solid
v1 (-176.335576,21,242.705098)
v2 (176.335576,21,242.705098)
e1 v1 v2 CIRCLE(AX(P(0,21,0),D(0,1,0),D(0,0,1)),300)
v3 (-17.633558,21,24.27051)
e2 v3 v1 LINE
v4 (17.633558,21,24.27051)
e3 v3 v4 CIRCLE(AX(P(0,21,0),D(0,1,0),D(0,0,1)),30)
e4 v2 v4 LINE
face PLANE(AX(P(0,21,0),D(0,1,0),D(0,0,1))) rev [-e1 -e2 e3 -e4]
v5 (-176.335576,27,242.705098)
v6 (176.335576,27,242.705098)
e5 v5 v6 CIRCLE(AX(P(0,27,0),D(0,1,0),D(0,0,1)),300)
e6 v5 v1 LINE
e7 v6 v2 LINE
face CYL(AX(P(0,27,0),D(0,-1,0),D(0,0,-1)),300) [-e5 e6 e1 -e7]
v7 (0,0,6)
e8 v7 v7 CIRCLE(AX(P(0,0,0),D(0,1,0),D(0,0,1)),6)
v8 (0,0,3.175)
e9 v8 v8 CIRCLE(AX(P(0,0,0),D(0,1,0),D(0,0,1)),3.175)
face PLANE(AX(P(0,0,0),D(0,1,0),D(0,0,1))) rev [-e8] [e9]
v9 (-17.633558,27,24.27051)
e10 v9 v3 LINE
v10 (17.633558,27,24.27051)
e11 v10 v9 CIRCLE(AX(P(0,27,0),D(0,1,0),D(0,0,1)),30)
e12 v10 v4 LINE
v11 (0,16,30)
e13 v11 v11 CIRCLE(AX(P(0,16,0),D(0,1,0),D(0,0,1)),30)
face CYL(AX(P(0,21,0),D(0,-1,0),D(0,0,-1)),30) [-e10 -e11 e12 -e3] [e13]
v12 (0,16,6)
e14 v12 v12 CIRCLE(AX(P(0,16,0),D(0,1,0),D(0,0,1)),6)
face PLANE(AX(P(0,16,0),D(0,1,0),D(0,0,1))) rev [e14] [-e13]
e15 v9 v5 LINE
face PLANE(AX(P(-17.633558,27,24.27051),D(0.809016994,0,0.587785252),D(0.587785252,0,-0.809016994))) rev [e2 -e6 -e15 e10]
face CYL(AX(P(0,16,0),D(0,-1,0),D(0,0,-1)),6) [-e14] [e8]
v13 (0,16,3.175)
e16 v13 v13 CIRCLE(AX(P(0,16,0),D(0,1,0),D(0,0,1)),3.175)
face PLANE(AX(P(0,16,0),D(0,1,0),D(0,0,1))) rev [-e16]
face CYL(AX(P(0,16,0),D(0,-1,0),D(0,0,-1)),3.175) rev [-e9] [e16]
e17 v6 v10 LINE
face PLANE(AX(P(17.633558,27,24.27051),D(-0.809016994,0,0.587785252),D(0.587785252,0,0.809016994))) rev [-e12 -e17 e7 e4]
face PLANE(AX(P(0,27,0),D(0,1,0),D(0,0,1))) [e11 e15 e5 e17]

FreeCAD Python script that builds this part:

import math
import FreeCAD as App
import Part
import Sketcher
Q = App.Units.Quantity

doc = App.newDocument("Part")
body = doc.addObject("PartDesign::Body", "Body")

# Sketch on XZ plane
sketch1 = body.newObject("Sketcher::SketchObject", "Sketch")
sketch1.AttachmentSupport = (doc.getObject("XZ_Plane"), [""])
sketch1.MapMode = "FlatFace"
sketch1.addGeometry(Part.Circle(App.Vector(0, 0, 0), App.Vector(0, 0, 1), 6), False)
sketch1.addGeometry(Part.Circle(App.Vector(0, 0, 0), App.Vector(0, 0, 1), 3.2), False)
sketch1.addConstraint(Sketcher.Constraint("Coincident", 0, 3, -1, 1))
sketch1.addConstraint(Sketcher.Constraint("Coincident", 1, 3, -1, 1))
sketch1.addConstraint(Sketcher.Constraint("Diameter", 0, Q("12 mm")))
sketch1.addConstraint(Sketcher.Constraint("Diameter", 1, Q("6.35 mm")))
pad1 = body.newObject("PartDesign::Pad", "Pad")
pad1.Profile = sketch1
pad1.Length = 16
pad1.Reversed = True

# Sketch on XZ plane
sketch2 = body.newObject("Sketcher::SketchObject", "Sketch001")
sketch2.AttachmentSupport = (doc.getObject("XZ_Plane"), [""])
sketch2.MapMode = "FlatFace"
sketch2.AttachmentOffset = App.Placement(App.Vector(0, 0, -16), App.Rotation())
sketch2.addGeometry(Part.Circle(App.Vector(0, 0, 0), App.Vector(0, 0, 1), 30), False)
sketch2.addConstraint(Sketcher.Constraint("Coincident", 0, 3, -1, 1))
sketch2.addConstraint(Sketcher.Constraint("Diameter", 0, Q("60 mm")))
pad2 = body.newObject("PartDesign::Pad", "Pad001")
pad2.Profile = sketch2
pad2.Length = 5
pad2.Reversed = True

# Sketch on XZ plane
sketch3 = body.newObject("Sketcher::SketchObject", "Sketch002")
sketch3.AttachmentSupport = (doc.getObject("XZ_Plane"), [""])
sketch3.MapMode = "FlatFace"
sketch3.AttachmentOffset = App.Placement(App.Vector(0, 0, -21), App.Rotation())
sketch3.addGeometry(Part.LineSegment(App.Vector(176, 243, 0), App.Vector(18, 24, 0)), False)
sketch3.addGeometry(Part.ArcOfCircle(Part.Circle(App.Vector(0, 0, 0), App.Vector(0, 0, 1), 30), math.radians(126), math.radians(414)), False)
sketch3.addGeometry(Part.LineSegment(App.Vector(-18, 24, 0), App.Vector(-176, 243, 0)), False)
sketch3.addGeometry(Part.ArcOfCircle(Part.Circle(App.Vector(0, 0, 0), App.Vector(0, 0, 1), 300), math.radians(54), math.radians(126)), False)
sketch3.addConstraint(Sketcher.Constraint("Coincident", 0, 2, 1, 2))
sketch3.addConstraint(Sketcher.Constraint("Coincident", 1, 1, 2, 1))
sketch3.addConstraint(Sketcher.Constraint("Coincident", 2, 2, 3, 2))
sketch3.addConstraint(Sketcher.Constraint("Coincident", 3, 1, 0, 1))
sketch3.addConstraint(Sketcher.Constraint("Coincident", 1, 3, -1, 1))
sketch3.addConstraint(Sketcher.Constraint("Coincident", 3, 3, -1, 1))
sketch3.addConstraint(Sketcher.Constraint("Horizontal", 0, 2, 1, 1))
sketch3.addConstraint(Sketcher.Constraint("Horizontal", 2, 2, 3, 1))
sketch3.addConstraint(Sketcher.Constraint("Radius", 1, Q("30 mm")))
sketch3.addConstraint(Sketcher.Constraint("Radius", 3, Q("300 mm")))
sketch3.addConstraint(Sketcher.Constraint("Angle", 0, Q("-126 deg")))
sketch3.addConstraint(Sketcher.Constraint("DistanceY", -1, 1, 2, 2, Q("242.705098 mm")))
pad3 = body.newObject("PartDesign::Pad", "Pad002")
pad3.Profile = sketch3
pad3.Length = 6
pad3.Reversed = True

doc.recompute()
